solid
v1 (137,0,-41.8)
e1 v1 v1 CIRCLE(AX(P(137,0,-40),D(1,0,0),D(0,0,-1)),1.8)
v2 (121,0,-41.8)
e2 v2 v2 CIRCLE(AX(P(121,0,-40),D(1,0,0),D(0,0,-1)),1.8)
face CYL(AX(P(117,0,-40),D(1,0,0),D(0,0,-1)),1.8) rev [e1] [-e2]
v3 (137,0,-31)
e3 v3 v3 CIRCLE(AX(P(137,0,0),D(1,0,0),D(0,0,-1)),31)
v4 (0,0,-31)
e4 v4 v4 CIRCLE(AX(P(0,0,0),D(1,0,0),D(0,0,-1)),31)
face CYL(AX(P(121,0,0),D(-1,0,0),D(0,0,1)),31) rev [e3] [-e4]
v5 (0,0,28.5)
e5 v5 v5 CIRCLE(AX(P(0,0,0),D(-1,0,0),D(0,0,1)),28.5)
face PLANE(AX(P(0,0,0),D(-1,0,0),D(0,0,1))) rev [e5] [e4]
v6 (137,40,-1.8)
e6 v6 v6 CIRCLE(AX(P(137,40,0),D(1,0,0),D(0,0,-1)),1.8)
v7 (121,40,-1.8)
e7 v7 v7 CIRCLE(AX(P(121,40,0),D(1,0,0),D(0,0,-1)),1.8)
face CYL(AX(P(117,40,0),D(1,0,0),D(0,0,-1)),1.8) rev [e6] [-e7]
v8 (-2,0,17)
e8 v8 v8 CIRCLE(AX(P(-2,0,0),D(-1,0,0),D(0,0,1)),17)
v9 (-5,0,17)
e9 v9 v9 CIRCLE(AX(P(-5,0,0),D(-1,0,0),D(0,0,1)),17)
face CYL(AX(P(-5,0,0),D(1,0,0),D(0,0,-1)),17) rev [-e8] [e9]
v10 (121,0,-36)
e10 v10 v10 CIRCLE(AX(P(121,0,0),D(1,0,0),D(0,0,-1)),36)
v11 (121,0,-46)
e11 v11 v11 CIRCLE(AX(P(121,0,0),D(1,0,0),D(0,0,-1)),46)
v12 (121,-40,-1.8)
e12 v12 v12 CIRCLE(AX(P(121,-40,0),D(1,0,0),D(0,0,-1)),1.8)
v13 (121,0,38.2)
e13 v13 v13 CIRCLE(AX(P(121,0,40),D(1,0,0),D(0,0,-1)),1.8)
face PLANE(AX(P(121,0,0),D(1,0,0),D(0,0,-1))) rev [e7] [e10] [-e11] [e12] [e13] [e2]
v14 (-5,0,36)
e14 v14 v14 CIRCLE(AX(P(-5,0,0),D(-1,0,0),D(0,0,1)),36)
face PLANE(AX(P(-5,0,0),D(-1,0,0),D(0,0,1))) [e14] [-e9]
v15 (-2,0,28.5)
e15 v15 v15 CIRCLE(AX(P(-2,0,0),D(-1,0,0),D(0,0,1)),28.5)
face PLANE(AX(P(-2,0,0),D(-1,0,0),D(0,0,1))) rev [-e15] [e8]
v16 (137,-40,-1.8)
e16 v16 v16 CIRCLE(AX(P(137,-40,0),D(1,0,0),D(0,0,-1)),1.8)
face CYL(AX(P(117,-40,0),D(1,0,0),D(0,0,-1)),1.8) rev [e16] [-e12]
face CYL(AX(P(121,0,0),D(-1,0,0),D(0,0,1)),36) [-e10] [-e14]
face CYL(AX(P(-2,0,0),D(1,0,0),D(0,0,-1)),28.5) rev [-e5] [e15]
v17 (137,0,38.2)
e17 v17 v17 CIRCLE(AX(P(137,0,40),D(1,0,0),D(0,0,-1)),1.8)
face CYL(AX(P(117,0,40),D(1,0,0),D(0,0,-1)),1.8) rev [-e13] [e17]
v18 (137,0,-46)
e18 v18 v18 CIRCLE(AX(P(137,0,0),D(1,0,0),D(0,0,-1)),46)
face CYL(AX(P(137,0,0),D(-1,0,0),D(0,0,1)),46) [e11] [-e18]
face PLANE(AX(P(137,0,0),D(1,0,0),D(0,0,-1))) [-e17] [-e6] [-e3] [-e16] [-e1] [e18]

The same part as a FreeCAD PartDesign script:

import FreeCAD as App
import Part
import Sketcher

V = App.Vector
Q = App.Units.Quantity

doc = App.newDocument("Part")
body = doc.addObject("PartDesign::Body", "Body")

# Sketch on YZ plane
sketch1 = body.newObject("Sketcher::SketchObject", "Sketch")
sketch1.AttachmentSupport = (doc.getObject("YZ_Plane"), [""])
sketch1.MapMode = "FlatFace"
sketch1.addGeometry(Part.Circle(V(0, 0, 0), V(0, 0, 1), 36), False)
sketch1.addGeometry(Part.Circle(V(0, 0, 0), V(0, 0, 1), 31), False)
sketch1.addConstraint(Sketcher.Constraint("Coincident", 0, 3, -1, 1))
sketch1.addConstraint(Sketcher.Constraint("Coincident", 1, 3, -1, 1))
sketch1.addConstraint(Sketcher.Constraint("Diameter", 0, Q("72 mm")))
sketch1.addConstraint(Sketcher.Constraint("Diameter", 1, Q("62 mm")))
pad1 = body.newObject("PartDesign::Pad", "Pad")
pad1.Profile = sketch1
pad1.Length = 121

# Sketch on YZ plane
sketch2 = body.newObject("Sketcher::SketchObject", "Sketch001")
sketch2.AttachmentSupport = (doc.getObject("YZ_Plane"), [""])
sketch2.MapMode = "FlatFace"
sketch2.AttachmentOffset = App.Placement(V(0, 0, 121), App.Rotation())
sketch2.addGeometry(Part.Circle(V(0, 0, 0), V(0, 0, 1), 46), False)
sketch2.addGeometry(Part.Circle(V(0, 0, 0), V(0, 0, 1), 31), False)
sketch2.addConstraint(Sketcher.Constraint("Coincident", 0, 3, -1, 1))
sketch2.addConstraint(Sketcher.Constraint("Coincident", 1, 3, -1, 1))
sketch2.addConstraint(Sketcher.Constraint("Diameter", 0, Q("92 mm")))
sketch2.addConstraint(Sketcher.Constraint("Diameter", 1, Q("62 mm")))
pad2 = body.newObject("PartDesign::Pad", "Pad001")
pad2.Profile = sketch2
pad2.Length = 16

# Sketch on YZ plane
sketch3 = body.newObject("Sketcher::SketchObject", "Sketch002")
sketch3.AttachmentSupport = (doc.getObject("YZ_Plane"), [""])
sketch3.MapMode = "FlatFace"
sketch3.AttachmentOffset = App.Placement(V(0, 0, -2), App.Rotation())
sketch3.addGeometry(Part.Circle(V(0, 0, 0), V(0, 0, 1), 36), False)
sketch3.addGeometry(Part.Circle(V(0, 0, 0), V(0, 0, 1), 28), False)
sketch3.addConstraint(Sketcher.Constraint("Coincident", 0, 3, -1, 1))
sketch3.addConstraint(Sketcher.Constraint("Coincident", 1, 3, -1, 1))
sketch3.addConstraint(Sketcher.Constraint("Diameter", 0, Q("72 mm")))
sketch3.addConstraint(Sketcher.Constraint("Diameter", 1, Q("57 mm")))
pad3 = body.newObject("PartDesign::Pad", "Pad002")
pad3.Profile = sketch3
pad3.Length = 2

# Sketch on YZ plane
sketch4 = body.newObject("Sketcher::SketchObject", "Sketch003")
sketch4.AttachmentSupport = (doc.getObject("YZ_Plane"), [""])
sketch4.MapMode = "FlatFace"
sketch4.AttachmentOffset = App.Placement(V(0, 0, -5), App.Rotation())
sketch4.addGeometry(Part.Circle(V(0, 0, 0), V(0, 0, 1), 36), False)
sketch4.addGeometry(Part.Circle(V(0, 0, 0), V(0, 0, 1), 17), False)
sketch4.addConstraint(Sketcher.Constraint("Coincident", 0, 3, -1, 1))
sketch4.addConstraint(Sketcher.Constraint("Coincident", 1, 3, -1, 1))
sketch4.addConstraint(Sketcher.Constraint("Diameter", 0, Q("72 mm")))
sketch4.addConstraint(Sketcher.Constraint("Diameter", 1, Q("34 mm")))
pad4 = body.newObject("PartDesign::Pad", "Pad003")
pad4.Profile = sketch4
pad4.Length = 3

# Sketch on YZ plane
sketch5 = body.newObject("Sketcher::SketchObject", "Sketch004")
sketch5.AttachmentSupport = (doc.getObject("YZ_Plane"), [""])
sketch5.MapMode = "FlatFace"
sketch5.AttachmentOffset = App.Placement(V(0, 0, 137), App.Rotation())
sketch5.addGeometry(Part.Circle(V(40, 0, 0), V(0, 0, 1), 1.8), False)
sketch5.addGeometry(Part.Circle(V(0, -40, 0), V(0, 0, 1), 1.8), False)
sketch5.addGeometry(Part.Circle(V(-40, 0, 0), V(0, 0, 1), 1.8), False)
sketch5.addGeometry(Part.Circle(V(0, 40, 0), V(0, 0, 1), 1.8), False)
sketch5.addConstraint(Sketcher.Constraint("Equal", 0, 1))
sketch5.addConstraint(Sketcher.Constraint("Equal", 1, 2))
sketch5.addConstraint(Sketcher.Constraint("Equal", 2, 3))
sketch5.addConstraint(Sketcher.Constraint("Symmetric", 0, 3, 2, 3, -1, 1))
sketch5.addConstraint(Sketcher.Constraint("Symmetric", 1, 3, 3, 3, -1, 1))
sketch5.addConstraint(Sketcher.Constraint("PointOnObject", 0, 3, -1))
sketch5.addConstraint(Sketcher.Constraint("PointOnObject", 1, 3, -2))
sketch5.addConstraint(Sketcher.Constraint("Diameter", 0, Q("3.6 mm")))
sketch5.addConstraint(Sketcher.Constraint("DistanceX", -1, 1, 0, 3, Q("40 mm")))
sketch5.addConstraint(Sketcher.Constraint("DistanceY", 1, 3, -1, 1, Q("40 mm")))
pocket1 = body.newObject("PartDesign::Pocket", "Pocket")
pocket1.Profile = sketch5
pocket1.Length = 20

doc.recompute()
